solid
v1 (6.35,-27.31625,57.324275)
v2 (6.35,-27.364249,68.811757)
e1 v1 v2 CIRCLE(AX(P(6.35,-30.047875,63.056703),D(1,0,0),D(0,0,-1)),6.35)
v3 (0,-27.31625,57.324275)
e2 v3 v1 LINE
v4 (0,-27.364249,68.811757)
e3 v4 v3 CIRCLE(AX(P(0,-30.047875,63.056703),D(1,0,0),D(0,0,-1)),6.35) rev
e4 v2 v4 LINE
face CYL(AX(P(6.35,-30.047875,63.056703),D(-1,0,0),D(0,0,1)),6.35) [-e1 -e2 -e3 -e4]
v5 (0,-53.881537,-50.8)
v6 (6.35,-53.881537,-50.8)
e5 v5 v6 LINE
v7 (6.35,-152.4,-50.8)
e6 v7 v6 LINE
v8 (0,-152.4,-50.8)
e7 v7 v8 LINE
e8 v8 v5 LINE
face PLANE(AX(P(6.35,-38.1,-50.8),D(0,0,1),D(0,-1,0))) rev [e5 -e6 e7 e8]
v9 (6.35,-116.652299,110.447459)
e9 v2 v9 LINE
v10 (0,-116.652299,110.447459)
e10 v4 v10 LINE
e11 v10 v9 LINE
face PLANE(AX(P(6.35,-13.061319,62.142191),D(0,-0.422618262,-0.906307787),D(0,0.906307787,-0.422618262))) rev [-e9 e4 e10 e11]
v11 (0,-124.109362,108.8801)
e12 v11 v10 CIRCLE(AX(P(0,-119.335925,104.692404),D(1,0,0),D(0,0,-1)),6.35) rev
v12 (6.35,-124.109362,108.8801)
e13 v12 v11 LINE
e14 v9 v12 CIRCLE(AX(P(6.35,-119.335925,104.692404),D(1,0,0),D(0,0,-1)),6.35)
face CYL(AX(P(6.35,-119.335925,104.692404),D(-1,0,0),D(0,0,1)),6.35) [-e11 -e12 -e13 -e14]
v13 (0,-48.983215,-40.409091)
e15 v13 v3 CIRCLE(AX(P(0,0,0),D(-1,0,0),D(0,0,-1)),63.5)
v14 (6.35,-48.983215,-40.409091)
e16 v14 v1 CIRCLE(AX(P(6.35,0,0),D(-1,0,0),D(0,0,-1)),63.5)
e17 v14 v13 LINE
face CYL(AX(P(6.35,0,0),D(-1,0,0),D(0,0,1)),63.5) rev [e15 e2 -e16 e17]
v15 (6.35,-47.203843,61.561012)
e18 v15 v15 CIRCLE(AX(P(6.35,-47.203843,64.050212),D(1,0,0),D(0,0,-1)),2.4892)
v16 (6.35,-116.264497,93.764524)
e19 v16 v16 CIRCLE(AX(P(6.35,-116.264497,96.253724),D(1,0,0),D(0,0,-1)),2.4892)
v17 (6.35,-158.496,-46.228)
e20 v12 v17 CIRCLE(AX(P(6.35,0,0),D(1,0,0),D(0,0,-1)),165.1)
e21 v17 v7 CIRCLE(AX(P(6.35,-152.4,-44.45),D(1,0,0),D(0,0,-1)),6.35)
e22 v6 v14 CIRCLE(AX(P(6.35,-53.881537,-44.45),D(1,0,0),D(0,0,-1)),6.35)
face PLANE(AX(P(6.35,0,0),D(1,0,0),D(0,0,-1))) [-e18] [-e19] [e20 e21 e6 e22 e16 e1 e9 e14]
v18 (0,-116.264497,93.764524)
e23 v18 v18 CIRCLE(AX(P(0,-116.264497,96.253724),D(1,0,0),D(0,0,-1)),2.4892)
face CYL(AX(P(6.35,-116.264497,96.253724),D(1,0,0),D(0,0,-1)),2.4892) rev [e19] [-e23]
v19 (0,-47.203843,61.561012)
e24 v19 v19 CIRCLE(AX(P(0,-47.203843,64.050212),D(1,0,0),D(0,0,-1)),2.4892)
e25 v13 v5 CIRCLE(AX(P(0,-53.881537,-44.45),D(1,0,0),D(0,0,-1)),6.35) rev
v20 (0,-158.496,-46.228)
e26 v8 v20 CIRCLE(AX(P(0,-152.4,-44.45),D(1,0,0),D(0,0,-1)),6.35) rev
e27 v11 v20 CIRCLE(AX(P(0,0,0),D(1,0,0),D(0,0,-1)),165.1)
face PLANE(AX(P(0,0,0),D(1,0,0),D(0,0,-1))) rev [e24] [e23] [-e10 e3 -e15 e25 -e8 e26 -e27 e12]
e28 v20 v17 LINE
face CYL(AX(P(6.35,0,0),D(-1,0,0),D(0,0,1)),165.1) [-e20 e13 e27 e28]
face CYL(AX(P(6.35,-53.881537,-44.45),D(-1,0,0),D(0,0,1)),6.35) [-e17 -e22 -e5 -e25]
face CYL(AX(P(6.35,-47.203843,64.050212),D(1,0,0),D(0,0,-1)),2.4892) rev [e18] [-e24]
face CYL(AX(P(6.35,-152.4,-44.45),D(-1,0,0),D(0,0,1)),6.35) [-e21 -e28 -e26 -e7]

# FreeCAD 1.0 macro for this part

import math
import FreeCAD as App
import Part
import Sketcher
from FreeCAD import Vector
Q = App.Units.Quantity


def edges_at(feature, points):
    """Names of the edges that pass closest to the given points."""
    edges = feature.Shape.Edges
    near = lambda p: min(range(len(edges)), key=lambda i: edges[i].distToShape(Part.Vertex(*p))[0])
    return sorted({f"Edge{near(p) + 1}" for p in points})

doc = App.newDocument("Part")
body = doc.addObject("PartDesign::Body", "Body")

sketch1 = body.newObject("Sketcher::SketchObject", "Sketch")
sketch1.AttachmentSupport = (doc.getObject("YZ_Plane"), [""])
sketch1.MapMode = "FlatFace"
sketch1.addGeometry([
    Part.LineSegment(Vector(-13, 62, 0), Vector(-121, 112, 0)),
    Part.ArcOfCircle(Part.Circle(Vector(0, 0, 0), Vector(0, 0, 1), 165), math.radians(137), math.radians(198)),
    Part.LineSegment(Vector(-157, -51, 0), Vector(-38, -51, 0)),
    Part.ArcOfCircle(Part.Circle(Vector(0, 0, 0), Vector(0, 0, 1), 64), math.radians(102), math.radians(233)),
], False)
sketch1.addConstraint([
    Sketcher.Constraint("Coincident", 0, 2, 1, 1),
    Sketcher.Constraint("Coincident", 1, 2, 2, 1),
    Sketcher.Constraint("Coincident", 2, 2, 3, 2),
    Sketcher.Constraint("Coincident", 3, 1, 0, 1),
    Sketcher.Constraint("Horizontal", 2),
    Sketcher.Constraint("Coincident", 1, 3, -1, 1),
    Sketcher.Constraint("Coincident", 3, 3, -1, 1),
    Sketcher.Constraint("Radius", 1, Q("6.5 in")),
    Sketcher.Constraint("Radius", 3, Q("2.5 in")),
    Sketcher.Constraint("DistanceY", 1, 2, -1, 1, Q("2 in")),
    Sketcher.Constraint("Angle", 0, Q("155 deg")),
    Sketcher.Constraint("DistanceX", 3, 1, -1, 1, 13.061319),
])
pad1 = body.newObject("PartDesign::Pad", "Pad")
pad1.Profile = sketch1
pad1.Length = Q("0.25 in")

sketch2 = body.newObject("Sketcher::SketchObject", "Sketch001")
sketch2.AttachmentSupport = (doc.getObject("YZ_Plane"), [""])
sketch2.MapMode = "FlatFace"
sketch2.AttachmentOffset = App.Placement(Vector(0, 0, 0.25 * 25.4), App.Rotation())
sketch2.addGeometry([
    Part.Circle(Vector(-116.3, 96.3, 0), Vector(0, 0, 1), 2.5),
    Part.Circle(Vector(-47.2, 64.1, 0), Vector(0, 0, 1), 2.5),
], False)
sketch2.addConstraint([
    Sketcher.Constraint("Equal", 0, 1),
    Sketcher.Constraint("Diameter", 0, Q("0.196 in")),
    Sketcher.Constraint("DistanceY", 1, 3, 0, 3, 32.203512),
    Sketcher.Constraint("DistanceX", 0, 3, -1, 1, 116.264497),
    Sketcher.Constraint("DistanceY", -1, 1, 0, 3, 96.253724),
    Sketcher.Constraint("DistanceX", 1, 3, -1, 1, 47.203843),
])
doc.recompute()
hole = body.newObject("PartDesign::Hole", "Hole")
hole.Profile = sketch2
hole.ThreadType = "None"
hole.Diameter = Q("0.196 in")
hole.DepthType = "ThroughAll"
doc.recompute()

fillet = body.newObject("PartDesign::Fillet", "Fillet")
fillet.Base = (hole, edges_at(hole, [
    (3.175, -120.903, 112.43),
    (3.175, -13.061, 62.142),
    (3.175, -38.1, -50.8),
    (3.175, -157.09, -50.8),
]))
fillet.Radius = Q("0.25 in")

doc.recompute()
